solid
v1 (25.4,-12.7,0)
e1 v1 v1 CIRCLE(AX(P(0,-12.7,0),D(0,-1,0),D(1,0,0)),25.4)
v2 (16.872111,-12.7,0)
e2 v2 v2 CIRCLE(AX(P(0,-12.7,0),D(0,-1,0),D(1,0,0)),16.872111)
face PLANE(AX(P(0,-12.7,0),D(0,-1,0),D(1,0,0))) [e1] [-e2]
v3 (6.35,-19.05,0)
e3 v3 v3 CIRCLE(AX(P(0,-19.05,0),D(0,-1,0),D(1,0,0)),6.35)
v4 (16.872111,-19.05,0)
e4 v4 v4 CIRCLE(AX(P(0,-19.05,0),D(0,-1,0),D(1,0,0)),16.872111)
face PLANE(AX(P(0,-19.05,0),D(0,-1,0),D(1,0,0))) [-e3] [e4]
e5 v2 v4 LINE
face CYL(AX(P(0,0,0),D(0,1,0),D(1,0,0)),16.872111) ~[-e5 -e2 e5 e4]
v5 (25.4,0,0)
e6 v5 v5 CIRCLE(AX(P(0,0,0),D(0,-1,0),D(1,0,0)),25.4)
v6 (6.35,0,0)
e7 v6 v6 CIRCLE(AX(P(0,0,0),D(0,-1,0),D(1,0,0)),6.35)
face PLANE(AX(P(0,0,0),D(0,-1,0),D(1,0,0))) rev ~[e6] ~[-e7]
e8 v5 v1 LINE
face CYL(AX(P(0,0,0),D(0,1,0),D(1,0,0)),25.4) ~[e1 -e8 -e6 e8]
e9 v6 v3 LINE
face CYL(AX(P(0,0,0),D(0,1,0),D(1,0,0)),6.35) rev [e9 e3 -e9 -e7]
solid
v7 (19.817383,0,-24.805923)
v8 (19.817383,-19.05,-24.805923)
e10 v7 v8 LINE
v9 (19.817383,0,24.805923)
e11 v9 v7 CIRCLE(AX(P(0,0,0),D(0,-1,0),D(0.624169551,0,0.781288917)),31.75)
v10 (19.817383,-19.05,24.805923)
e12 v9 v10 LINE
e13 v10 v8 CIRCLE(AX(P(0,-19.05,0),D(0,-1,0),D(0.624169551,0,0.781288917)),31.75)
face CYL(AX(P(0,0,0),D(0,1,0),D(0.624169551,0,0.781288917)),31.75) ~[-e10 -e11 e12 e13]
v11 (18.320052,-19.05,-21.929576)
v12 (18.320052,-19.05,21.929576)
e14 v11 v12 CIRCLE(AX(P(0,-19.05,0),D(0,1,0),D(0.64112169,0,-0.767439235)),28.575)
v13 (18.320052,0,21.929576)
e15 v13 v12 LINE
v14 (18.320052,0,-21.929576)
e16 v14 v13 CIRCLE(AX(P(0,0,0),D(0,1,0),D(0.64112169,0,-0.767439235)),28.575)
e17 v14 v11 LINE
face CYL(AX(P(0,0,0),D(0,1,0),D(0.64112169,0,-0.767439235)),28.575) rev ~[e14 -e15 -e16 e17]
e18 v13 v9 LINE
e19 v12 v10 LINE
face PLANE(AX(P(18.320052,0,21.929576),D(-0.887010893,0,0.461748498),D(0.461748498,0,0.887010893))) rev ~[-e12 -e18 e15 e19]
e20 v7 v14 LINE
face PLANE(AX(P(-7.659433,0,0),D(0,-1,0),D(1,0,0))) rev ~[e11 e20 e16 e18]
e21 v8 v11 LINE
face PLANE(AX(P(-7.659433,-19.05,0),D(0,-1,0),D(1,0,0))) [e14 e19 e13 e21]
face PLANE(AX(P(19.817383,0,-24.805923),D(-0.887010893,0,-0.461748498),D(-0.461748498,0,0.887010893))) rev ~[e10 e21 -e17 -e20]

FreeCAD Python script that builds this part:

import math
import FreeCAD as App
import Part
import Sketcher
Q = App.Units.Quantity

doc = App.newDocument("Part")
body = doc.addObject("PartDesign::Body", "Body")

# Sketch on XZ plane
sketch1 = body.newObject("Sketcher::SketchObject", "Sketch")
sketch1.AttachmentSupport = (doc.getObject("XZ_Plane"), [""])
sketch1.MapMode = "FlatFace"
sketch1.addGeometry(Part.Circle(App.Vector(0, 0, 0), App.Vector(0, 0, 1), 25.4), False)
sketch1.addGeometry(Part.Circle(App.Vector(0, 0, 0), App.Vector(0, 0, 1), 16.872111), False)
sketch1.addConstraint(Sketcher.Constraint("Coincident", 0, 3, -1, 1))
sketch1.addConstraint(Sketcher.Constraint("Coincident", 1, 3, -1, 1))
sketch1.addConstraint(Sketcher.Constraint("Diameter", 0, Q("2 in")))
sketch1.addConstraint(Sketcher.Constraint("Diameter", 1, 33.744222))
pad1 = body.newObject("PartDesign::Pad", "Pad")
pad1.Profile = sketch1
pad1.Length = Q("0.5 in")

# Sketch on XZ plane
sketch2 = body.newObject("Sketcher::SketchObject", "Sketch001")
sketch2.AttachmentSupport = (doc.getObject("XZ_Plane"), [""])
sketch2.MapMode = "FlatFace"
sketch2.addGeometry(Part.Circle(App.Vector(0, 0, 0), App.Vector(0, 0, 1), 16.872111), False)
sketch2.addGeometry(Part.Circle(App.Vector(0, 0, 0), App.Vector(0, 0, 1), 6.35), False)
sketch2.addConstraint(Sketcher.Constraint("Coincident", 0, 3, -1, 1))
sketch2.addConstraint(Sketcher.Constraint("Coincident", 1, 3, -1, 1))
sketch2.addConstraint(Sketcher.Constraint("Diameter", 1, Q("0.5 in")))
sketch2.addConstraint(Sketcher.Constraint("Diameter", 0, 33.744222))
pad2 = body.newObject("PartDesign::Pad", "Pad001")
pad2.Profile = sketch2
pad2.Length = Q("0.75 in")
body2 = doc.addObject("PartDesign::Body", "Body001")

# Sketch on XZ plane
sketch3 = body2.newObject("Sketcher::SketchObject", "Sketch002")
sketch3.AttachmentSupport = (doc.getObject("XZ_Plane001"), [""])
sketch3.MapMode = "FlatFace"
sketch3.addGeometry(Part.ArcOfCircle(Part.Circle(App.Vector(0, 0, 0), App.Vector(0, 0, 1), 28.575), math.radians(50.124488), math.radians(309.875512)), False)
sketch3.addGeometry(Part.LineSegment(App.Vector(18.320052, 21.929576, 0), App.Vector(19.817383, 24.805923, 0)), False)
sketch3.addGeometry(Part.ArcOfCircle(Part.Circle(App.Vector(0, 0, 0), App.Vector(0, 0, 1), 31.75), math.radians(51.378739), math.radians(308.621261)), False)
sketch3.addGeometry(Part.LineSegment(App.Vector(19.817383, -24.805923, 0), App.Vector(18.320052, -21.929576, 0)), False)
sketch3.addConstraint(Sketcher.Constraint("Coincident", 0, 1, 1, 1))
sketch3.addConstraint(Sketcher.Constraint("Coincident", 1, 2, 2, 1))
sketch3.addConstraint(Sketcher.Constraint("Coincident", 2, 2, 3, 1))
sketch3.addConstraint(Sketcher.Constraint("Coincident", 3, 2, 0, 2))
sketch3.addConstraint(Sketcher.Constraint("Coincident", 0, 3, -1, 1))
sketch3.addConstraint(Sketcher.Constraint("Coincident", 2, 3, -1, 1))
sketch3.addConstraint(Sketcher.Constraint("Vertical", 1, 2, 2, 2))
sketch3.addConstraint(Sketcher.Constraint("Vertical", 0, 1, 3, 2))
sketch3.addConstraint(Sketcher.Constraint("Radius", 2, Q("1.25 in")))
sketch3.addConstraint(Sketcher.Constraint("Radius", 0, Q("1.125 in")))
sketch3.addConstraint(Sketcher.Constraint("Angle", 1, Q("62.500007 deg")))
sketch3.addConstraint(Sketcher.Constraint("DistanceY", 2, 2, 0, 1, 46.735499))
pad3 = body2.newObject("PartDesign::Pad", "Pad002")
pad3.Profile = sketch3
pad3.Length = Q("0.75 in")

doc.recompute()
